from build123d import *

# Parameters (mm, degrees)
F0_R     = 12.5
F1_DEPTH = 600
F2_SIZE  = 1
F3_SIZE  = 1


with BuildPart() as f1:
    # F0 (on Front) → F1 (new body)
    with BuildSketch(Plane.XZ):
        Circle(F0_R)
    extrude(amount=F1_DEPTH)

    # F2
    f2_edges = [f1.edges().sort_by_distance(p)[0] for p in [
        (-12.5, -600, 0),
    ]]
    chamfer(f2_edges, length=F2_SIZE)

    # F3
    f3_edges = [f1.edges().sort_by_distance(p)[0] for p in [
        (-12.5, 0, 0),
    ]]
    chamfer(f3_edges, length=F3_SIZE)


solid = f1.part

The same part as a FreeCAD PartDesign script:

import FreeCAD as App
import Part
import Sketcher
Q = App.Units.Quantity


def edges_at(feature, points):
    """Names of the edges that pass closest to the given points."""
    edges = feature.Shape.Edges
    near = lambda p: min(range(len(edges)), key=lambda i: edges[i].distToShape(Part.Vertex(*p))[0])
    return sorted({f"Edge{near(p) + 1}" for p in points})

doc = App.newDocument("Part")
body = doc.addObject("PartDesign::Body", "Body")

# Sketch on XZ plane
sketch1 = doc.addObject("Sketcher::SketchObject", "Sketch")
body.addObject(sketch1)
sketch1.AttachmentSupport = (doc.XZ_Plane, [""])
sketch1.MapMode = "FlatFace"
sketch1.addGeometry(Part.Circle(App.Vector(0, 0, 0), App.Vector(0, 0, 1), 12.5), False)
sketch1.addConstraint(Sketcher.Constraint("Coincident", 0, 3, -1, 1))
sketch1.addConstraint(Sketcher.Constraint("Diameter", 0, Q("25 mm")))
pad1 = doc.addObject("PartDesign::Pad", "Pad")
body.addObject(pad1)
pad1.Profile = sketch1
pad1.Length = 600
doc.recompute()

chamfer = doc.addObject("PartDesign::Chamfer", "Chamfer")
body.addObject(chamfer)
chamfer.Base = (pad1, edges_at(pad1, [(-12.5, -600, 0)]))
chamfer.Size = 1
doc.recompute()

chamfer2 = doc.addObject("PartDesign::Chamfer", "Chamfer001")
body.addObject(chamfer2)
chamfer2.Base = (chamfer, edges_at(chamfer, [(-12.5, 0, 0)]))
chamfer2.Size = 1

doc.recompute()
